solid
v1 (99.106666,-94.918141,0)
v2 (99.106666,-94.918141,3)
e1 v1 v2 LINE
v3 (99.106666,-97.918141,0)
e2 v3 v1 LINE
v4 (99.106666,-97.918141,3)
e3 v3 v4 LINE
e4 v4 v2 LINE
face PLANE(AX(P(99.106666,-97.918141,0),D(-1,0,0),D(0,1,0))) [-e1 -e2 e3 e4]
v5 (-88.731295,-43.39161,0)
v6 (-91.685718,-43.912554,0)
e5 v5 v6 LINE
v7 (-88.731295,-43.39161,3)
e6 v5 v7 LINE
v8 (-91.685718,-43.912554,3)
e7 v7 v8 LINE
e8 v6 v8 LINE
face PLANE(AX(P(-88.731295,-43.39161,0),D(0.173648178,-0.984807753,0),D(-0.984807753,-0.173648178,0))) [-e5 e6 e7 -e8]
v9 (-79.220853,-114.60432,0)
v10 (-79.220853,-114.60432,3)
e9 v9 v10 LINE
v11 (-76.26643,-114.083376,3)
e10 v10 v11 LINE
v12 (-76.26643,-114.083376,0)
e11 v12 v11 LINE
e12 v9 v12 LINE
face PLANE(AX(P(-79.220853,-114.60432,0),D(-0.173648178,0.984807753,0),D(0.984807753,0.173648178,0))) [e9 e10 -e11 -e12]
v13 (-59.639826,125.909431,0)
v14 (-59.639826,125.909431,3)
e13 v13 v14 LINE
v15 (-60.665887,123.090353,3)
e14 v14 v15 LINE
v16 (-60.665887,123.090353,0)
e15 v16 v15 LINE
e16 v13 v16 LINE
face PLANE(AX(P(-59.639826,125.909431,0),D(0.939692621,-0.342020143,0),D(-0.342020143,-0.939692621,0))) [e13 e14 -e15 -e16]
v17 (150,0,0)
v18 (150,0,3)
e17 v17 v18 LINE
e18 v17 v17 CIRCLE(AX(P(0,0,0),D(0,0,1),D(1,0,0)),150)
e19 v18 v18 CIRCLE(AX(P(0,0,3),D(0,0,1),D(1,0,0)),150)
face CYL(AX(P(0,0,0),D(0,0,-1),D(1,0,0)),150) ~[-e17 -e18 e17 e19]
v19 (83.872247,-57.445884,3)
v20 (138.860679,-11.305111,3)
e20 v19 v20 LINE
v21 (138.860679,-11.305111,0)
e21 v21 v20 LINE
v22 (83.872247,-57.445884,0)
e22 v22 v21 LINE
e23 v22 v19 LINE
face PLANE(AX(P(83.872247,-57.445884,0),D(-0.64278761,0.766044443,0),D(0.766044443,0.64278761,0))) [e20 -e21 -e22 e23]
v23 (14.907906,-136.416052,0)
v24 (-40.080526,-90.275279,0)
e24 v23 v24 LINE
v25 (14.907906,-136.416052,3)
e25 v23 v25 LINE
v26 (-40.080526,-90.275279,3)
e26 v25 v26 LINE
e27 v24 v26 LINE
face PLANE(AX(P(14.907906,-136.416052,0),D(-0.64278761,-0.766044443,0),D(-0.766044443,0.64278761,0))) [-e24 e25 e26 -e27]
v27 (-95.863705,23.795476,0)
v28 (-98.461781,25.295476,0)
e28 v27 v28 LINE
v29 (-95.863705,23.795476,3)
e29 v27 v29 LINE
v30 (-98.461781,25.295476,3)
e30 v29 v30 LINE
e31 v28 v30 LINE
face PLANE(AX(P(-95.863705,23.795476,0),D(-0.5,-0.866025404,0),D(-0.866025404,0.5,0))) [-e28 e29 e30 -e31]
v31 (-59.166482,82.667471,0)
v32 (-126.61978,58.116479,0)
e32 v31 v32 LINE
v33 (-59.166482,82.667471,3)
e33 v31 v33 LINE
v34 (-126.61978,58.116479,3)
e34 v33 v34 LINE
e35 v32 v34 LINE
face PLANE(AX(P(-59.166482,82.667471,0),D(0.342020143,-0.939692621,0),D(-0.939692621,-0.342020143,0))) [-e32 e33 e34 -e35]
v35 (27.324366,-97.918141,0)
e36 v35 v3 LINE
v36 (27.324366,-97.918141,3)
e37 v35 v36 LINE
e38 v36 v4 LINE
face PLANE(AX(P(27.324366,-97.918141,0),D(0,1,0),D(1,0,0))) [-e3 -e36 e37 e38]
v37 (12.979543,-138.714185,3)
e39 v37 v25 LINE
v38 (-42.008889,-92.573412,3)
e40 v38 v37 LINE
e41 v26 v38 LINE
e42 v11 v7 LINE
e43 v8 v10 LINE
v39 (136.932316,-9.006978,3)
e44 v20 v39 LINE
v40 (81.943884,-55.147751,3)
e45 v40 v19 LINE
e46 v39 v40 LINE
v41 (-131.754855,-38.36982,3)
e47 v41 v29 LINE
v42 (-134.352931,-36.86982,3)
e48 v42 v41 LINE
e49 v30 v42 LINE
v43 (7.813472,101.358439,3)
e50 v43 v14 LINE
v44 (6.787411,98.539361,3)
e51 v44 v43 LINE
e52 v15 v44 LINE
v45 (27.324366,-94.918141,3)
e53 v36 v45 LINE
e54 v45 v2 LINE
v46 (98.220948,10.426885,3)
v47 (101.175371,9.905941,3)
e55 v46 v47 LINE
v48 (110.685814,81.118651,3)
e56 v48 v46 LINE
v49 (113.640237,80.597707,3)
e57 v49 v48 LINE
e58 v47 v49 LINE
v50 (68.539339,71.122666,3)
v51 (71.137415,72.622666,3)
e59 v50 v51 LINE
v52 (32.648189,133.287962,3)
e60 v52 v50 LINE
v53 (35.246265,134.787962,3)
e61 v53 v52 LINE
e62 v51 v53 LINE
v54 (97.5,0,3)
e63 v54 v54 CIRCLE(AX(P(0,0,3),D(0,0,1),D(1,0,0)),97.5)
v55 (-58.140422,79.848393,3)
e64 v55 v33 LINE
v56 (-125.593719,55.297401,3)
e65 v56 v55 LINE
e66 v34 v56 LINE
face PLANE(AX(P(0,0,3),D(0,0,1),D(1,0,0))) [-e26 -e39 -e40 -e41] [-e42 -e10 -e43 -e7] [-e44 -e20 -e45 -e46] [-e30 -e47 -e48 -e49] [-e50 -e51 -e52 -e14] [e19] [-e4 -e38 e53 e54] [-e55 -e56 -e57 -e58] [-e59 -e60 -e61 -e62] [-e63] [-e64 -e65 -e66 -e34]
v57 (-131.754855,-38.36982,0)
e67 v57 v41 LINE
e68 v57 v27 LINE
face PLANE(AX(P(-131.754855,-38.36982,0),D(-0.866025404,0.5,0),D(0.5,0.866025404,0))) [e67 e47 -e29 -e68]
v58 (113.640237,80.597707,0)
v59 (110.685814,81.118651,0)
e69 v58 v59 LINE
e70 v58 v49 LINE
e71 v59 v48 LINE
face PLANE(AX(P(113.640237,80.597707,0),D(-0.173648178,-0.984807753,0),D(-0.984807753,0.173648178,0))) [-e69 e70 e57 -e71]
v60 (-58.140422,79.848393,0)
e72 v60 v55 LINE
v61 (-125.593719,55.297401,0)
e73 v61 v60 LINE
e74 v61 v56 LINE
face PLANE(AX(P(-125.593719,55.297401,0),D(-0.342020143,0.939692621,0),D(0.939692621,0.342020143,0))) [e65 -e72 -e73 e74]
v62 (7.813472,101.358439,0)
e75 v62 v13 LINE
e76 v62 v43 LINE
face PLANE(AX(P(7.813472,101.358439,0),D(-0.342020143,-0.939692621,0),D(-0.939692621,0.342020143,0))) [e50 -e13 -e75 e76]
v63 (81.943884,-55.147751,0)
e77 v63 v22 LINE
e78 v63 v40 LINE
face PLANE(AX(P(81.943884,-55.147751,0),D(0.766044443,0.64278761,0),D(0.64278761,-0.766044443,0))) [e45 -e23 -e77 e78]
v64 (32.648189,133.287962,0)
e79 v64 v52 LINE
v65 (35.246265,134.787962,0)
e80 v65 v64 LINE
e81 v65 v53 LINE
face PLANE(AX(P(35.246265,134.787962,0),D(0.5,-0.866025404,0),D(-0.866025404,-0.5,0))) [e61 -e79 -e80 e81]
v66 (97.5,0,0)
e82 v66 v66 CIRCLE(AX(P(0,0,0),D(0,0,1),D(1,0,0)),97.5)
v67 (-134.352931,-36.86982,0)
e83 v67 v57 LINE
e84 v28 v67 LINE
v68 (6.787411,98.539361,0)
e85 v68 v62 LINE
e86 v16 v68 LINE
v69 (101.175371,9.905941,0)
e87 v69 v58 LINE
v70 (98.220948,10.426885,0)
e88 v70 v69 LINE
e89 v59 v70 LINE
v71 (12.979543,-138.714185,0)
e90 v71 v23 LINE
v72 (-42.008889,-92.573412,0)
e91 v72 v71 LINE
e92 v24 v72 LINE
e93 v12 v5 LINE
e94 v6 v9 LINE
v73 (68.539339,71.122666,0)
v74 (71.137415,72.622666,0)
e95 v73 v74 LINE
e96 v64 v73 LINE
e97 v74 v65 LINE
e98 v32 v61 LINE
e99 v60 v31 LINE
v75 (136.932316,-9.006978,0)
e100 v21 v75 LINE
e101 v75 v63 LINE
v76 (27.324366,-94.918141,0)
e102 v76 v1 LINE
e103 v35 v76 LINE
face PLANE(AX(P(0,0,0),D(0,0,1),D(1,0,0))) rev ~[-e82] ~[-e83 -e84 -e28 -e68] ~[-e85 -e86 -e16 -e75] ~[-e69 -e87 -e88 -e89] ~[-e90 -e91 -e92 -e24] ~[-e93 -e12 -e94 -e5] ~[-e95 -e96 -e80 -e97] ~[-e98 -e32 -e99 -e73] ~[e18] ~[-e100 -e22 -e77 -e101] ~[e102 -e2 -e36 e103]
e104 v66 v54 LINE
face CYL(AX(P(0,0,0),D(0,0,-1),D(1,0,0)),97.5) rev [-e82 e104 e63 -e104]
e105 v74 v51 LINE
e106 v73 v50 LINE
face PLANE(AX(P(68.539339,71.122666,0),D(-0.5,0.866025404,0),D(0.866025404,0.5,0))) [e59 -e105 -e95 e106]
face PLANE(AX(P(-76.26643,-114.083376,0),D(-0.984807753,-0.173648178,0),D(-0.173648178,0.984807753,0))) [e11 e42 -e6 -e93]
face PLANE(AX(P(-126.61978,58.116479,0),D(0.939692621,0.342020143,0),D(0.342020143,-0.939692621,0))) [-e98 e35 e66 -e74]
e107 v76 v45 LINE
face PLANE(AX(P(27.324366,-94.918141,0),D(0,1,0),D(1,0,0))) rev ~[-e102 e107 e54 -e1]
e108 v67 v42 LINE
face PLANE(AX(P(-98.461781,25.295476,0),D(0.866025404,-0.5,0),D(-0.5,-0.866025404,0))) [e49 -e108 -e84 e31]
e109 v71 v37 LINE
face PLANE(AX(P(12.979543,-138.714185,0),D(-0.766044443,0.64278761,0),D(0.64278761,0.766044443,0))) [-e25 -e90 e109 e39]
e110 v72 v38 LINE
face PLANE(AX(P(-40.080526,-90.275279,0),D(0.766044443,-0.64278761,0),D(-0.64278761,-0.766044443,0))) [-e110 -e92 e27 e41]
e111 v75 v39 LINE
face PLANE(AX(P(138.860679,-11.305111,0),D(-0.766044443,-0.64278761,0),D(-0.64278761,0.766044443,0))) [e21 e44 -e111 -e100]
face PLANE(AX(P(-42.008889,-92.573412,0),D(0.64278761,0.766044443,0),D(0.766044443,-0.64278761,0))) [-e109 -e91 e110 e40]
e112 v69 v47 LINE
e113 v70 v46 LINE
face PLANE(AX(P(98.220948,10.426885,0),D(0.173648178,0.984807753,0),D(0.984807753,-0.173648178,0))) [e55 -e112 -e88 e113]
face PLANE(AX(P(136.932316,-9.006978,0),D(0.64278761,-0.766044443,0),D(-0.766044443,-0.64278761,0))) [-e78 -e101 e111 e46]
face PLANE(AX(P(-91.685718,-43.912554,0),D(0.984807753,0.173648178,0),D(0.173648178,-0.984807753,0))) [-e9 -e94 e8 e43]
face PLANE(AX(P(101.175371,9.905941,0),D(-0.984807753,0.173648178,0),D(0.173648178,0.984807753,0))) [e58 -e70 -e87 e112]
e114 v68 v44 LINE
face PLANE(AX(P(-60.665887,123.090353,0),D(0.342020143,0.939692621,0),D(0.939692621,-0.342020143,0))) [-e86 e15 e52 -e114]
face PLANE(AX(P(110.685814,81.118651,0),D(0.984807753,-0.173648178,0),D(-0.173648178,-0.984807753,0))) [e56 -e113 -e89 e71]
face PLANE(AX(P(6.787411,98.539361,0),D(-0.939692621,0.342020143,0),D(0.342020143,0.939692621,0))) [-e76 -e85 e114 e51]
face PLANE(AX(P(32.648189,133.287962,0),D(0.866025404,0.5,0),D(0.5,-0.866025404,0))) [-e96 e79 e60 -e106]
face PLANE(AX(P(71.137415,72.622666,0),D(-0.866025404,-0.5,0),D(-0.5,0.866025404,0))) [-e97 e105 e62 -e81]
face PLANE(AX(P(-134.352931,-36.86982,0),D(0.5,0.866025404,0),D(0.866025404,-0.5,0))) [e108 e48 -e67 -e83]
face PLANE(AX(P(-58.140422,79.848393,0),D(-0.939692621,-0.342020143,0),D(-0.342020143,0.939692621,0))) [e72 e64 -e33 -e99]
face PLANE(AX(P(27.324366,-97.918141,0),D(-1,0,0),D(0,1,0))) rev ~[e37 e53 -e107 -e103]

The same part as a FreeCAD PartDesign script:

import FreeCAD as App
import Part
import Sketcher
Q = App.Units.Quantity


def add_polygon(sketch, points):
    """Adds a closed chain of lines whose ends are joined by coincident constraints."""
    first, n = sketch.GeometryCount, len(points)
    for a, b in zip(points, points[1:] + points[:1]):
        sketch.addGeometry(Part.LineSegment(App.Vector(*a, 0), App.Vector(*b, 0)), False)
    for i in range(n):
        sketch.addConstraint(Sketcher.Constraint("Coincident", first + i, 2, first + (i + 1) % n, 1))

doc = App.newDocument("Part")
body = doc.addObject("PartDesign::Body", "Body")

sketch1 = body.newObject("Sketcher::SketchObject", "Sketch")
sketch1.AttachmentSupport = (doc.getObject("XY_Plane"), [""])
sketch1.MapMode = "FlatFace"
sketch1.addGeometry([
    Part.Circle(App.Vector(0, 0, 0), App.Vector(0, 0, 1), 150),
    Part.Circle(App.Vector(0, 0, 0), App.Vector(0, 0, 1), 98),
], False)
sketch1.addConstraint([
    Sketcher.Constraint("Coincident", 0, 3, -1, 1),
    Sketcher.Constraint("Coincident", 1, 3, -1, 1),
    Sketcher.Constraint("Diameter", 0, 300.0),
    Sketcher.Constraint("Diameter", 1, 195.0),
])
pad1 = body.newObject("PartDesign::Pad", "Pad")
pad1.Profile = sketch1
pad1.Length = 3

sketch2 = body.newObject("Sketcher::SketchObject", "Sketch001")
sketch2.AttachmentSupport = (doc.getObject("XY_Plane"), [""])
sketch2.MapMode = "FlatFace"
add_polygon(sketch2, [(27.3, -94.9), (27.3, -97.9), (99.1, -97.9), (99.1, -94.9)])
add_polygon(sketch2, [(83.9, -57.4), (138.9, -11.3), (136.9, -9), (81.9, -55.1)])
add_polygon(sketch2, [(101.2, 9.9), (113.6, 80.6), (110.7, 81.1), (98.2, 10.4)])
add_polygon(sketch2, [(71.1, 72.6), (35.2, 134.8), (32.6, 133.3), (68.5, 71.1)])
add_polygon(sketch2, [(7.8, 101.4), (-59.6, 125.9), (-60.7, 123.1), (6.8, 98.5)])
add_polygon(sketch2, [(-59.2, 82.7), (-126.6, 58.1), (-125.6, 55.3), (-58.1, 79.8)])
add_polygon(sketch2, [(-98.5, 25.3), (-134.4, -36.9), (-131.8, -38.4), (-95.9, 23.8)])
add_polygon(sketch2, [(-91.7, -43.9), (-79.2, -114.6), (-76.3, -114.1), (-88.7, -43.4)])
add_polygon(sketch2, [(-42, -92.6), (13, -138.7), (14.9, -136.4), (-40.1, -90.3)])
sketch2.addConstraint([
    Sketcher.Constraint("Vertical", 0),
    Sketcher.Constraint("Horizontal", 1),
    Sketcher.Constraint("Vertical", 2),
    Sketcher.Constraint("Horizontal", 3),
    Sketcher.Constraint("Perpendicular", 4, 5),
    Sketcher.Constraint("Perpendicular", 5, 6),
    Sketcher.Constraint("Perpendicular", 6, 7),
    Sketcher.Constraint("Perpendicular", 8, 9),
    Sketcher.Constraint("Perpendicular", 9, 10),
    Sketcher.Constraint("Perpendicular", 10, 11),
    Sketcher.Constraint("Perpendicular", 12, 13),
    Sketcher.Constraint("Perpendicular", 13, 14),
    Sketcher.Constraint("Perpendicular", 14, 15),
    Sketcher.Constraint("Perpendicular", 16, 17),
    Sketcher.Constraint("Perpendicular", 17, 18),
    Sketcher.Constraint("Perpendicular", 18, 19),
    Sketcher.Constraint("Perpendicular", 20, 21),
    Sketcher.Constraint("Perpendicular", 21, 22),
    Sketcher.Constraint("Perpendicular", 22, 23),
    Sketcher.Constraint("Perpendicular", 24, 25),
    Sketcher.Constraint("Perpendicular", 25, 26),
    Sketcher.Constraint("Perpendicular", 26, 27),
    Sketcher.Constraint("Perpendicular", 28, 29),
    Sketcher.Constraint("Perpendicular", 29, 30),
    Sketcher.Constraint("Perpendicular", 30, 31),
    Sketcher.Constraint("Perpendicular", 32, 33),
    Sketcher.Constraint("Perpendicular", 33, 34),
    Sketcher.Constraint("Perpendicular", 34, 35),
    Sketcher.Constraint("Equal", 6, 8),
    Sketcher.Constraint("Equal", 7, 9),
    Sketcher.Constraint("Equal", 10, 12),
    Sketcher.Constraint("Equal", 11, 13),
    Sketcher.Constraint("Equal", 14, 16),
    Sketcher.Constraint("Equal", 15, 17),
    Sketcher.Constraint("Equal", 18, 20),
    Sketcher.Constraint("Equal", 19, 21),
    Sketcher.Constraint("Equal", 22, 24),
    Sketcher.Constraint("Equal", 23, 25),
    Sketcher.Constraint("Equal", 26, 28),
    Sketcher.Constraint("Equal", 27, 29),
    Sketcher.Constraint("Equal", 30, 32),
    Sketcher.Constraint("Equal", 31, 33),
    Sketcher.Constraint("DistanceY", 0, 2, 0, 1, 3.0),
    Sketcher.Constraint("Angle", 4, Q("40 deg")),
    Sketcher.Constraint("Angle", 8, Q("80 deg")),
    Sketcher.Constraint("Angle", 12, Q("120 deg")),
    Sketcher.Constraint("Angle", 16, Q("160 deg")),
    Sketcher.Constraint("Angle", 20, Q("-160 deg")),
    Sketcher.Constraint("Angle", 24, Q("-120 deg")),
    Sketcher.Constraint("Angle", 28, Q("-80 deg")),
    Sketcher.Constraint("Angle", 32, Q("-40 deg")),
    Sketcher.Constraint("Distance", 5, 3.0),
    Sketcher.Constraint("DistanceX", 1, 1, 1, 2, 71.7823),
    Sketcher.Constraint("DistanceX", 20, 2, 27, 2, 28.157999),
    Sketcher.Constraint("Distance", 4, 71.7823),
    Sketcher.Constraint("DistanceY", -1, 1, 21, 2, 55.297401),
    Sketcher.Constraint("DistanceX", 7, 2, 10, 2, 14.348701),
    Sketcher.Constraint("DistanceX", 14, 2, 8, 2, 45.100898),
    Sketcher.Constraint("DistanceX", 17, 2, 15, 2, 131.803302),
    Sketcher.Constraint("DistanceY", 18, 2, 13, 2, 34.748601),
    Sketcher.Constraint("DistanceY", 24, 2, 20, 2, 94.986299),
    Sketcher.Constraint("DistanceY", 28, 2, 25, 2, 76.2345),
    Sketcher.Constraint("DistanceX", 24, 2, 29, 2, 58.086502),
    Sketcher.Constraint("DistanceY", 0, 2, -1, 1, 97.918141),
    Sketcher.Constraint("DistanceX", -1, 1, 4, 2, 138.860679),
    Sketcher.Constraint("DistanceY", 4, 2, -1, 1, 11.305111),
    Sketcher.Constraint("DistanceY", -1, 1, 9, 2, 81.118651),
    Sketcher.Constraint("DistanceY", -1, 1, 12, 2, 134.787962),
    Sketcher.Constraint("DistanceX", 20, 2, -1, 1, 126.61978),
    Sketcher.Constraint("DistanceY", 34, 2, -1, 1, 90.275279),
    Sketcher.Constraint("DistanceX", 35, 2, -1, 1, 42.008889),
    Sketcher.Constraint("DistanceX", 2, 2, 5, 2, 37.82565),
])
pocket1 = body.newObject("PartDesign::Pocket", "Pocket")
pocket1.Profile = sketch2
pocket1.Length = 3
pocket1.Reversed = True

doc.recompute()
